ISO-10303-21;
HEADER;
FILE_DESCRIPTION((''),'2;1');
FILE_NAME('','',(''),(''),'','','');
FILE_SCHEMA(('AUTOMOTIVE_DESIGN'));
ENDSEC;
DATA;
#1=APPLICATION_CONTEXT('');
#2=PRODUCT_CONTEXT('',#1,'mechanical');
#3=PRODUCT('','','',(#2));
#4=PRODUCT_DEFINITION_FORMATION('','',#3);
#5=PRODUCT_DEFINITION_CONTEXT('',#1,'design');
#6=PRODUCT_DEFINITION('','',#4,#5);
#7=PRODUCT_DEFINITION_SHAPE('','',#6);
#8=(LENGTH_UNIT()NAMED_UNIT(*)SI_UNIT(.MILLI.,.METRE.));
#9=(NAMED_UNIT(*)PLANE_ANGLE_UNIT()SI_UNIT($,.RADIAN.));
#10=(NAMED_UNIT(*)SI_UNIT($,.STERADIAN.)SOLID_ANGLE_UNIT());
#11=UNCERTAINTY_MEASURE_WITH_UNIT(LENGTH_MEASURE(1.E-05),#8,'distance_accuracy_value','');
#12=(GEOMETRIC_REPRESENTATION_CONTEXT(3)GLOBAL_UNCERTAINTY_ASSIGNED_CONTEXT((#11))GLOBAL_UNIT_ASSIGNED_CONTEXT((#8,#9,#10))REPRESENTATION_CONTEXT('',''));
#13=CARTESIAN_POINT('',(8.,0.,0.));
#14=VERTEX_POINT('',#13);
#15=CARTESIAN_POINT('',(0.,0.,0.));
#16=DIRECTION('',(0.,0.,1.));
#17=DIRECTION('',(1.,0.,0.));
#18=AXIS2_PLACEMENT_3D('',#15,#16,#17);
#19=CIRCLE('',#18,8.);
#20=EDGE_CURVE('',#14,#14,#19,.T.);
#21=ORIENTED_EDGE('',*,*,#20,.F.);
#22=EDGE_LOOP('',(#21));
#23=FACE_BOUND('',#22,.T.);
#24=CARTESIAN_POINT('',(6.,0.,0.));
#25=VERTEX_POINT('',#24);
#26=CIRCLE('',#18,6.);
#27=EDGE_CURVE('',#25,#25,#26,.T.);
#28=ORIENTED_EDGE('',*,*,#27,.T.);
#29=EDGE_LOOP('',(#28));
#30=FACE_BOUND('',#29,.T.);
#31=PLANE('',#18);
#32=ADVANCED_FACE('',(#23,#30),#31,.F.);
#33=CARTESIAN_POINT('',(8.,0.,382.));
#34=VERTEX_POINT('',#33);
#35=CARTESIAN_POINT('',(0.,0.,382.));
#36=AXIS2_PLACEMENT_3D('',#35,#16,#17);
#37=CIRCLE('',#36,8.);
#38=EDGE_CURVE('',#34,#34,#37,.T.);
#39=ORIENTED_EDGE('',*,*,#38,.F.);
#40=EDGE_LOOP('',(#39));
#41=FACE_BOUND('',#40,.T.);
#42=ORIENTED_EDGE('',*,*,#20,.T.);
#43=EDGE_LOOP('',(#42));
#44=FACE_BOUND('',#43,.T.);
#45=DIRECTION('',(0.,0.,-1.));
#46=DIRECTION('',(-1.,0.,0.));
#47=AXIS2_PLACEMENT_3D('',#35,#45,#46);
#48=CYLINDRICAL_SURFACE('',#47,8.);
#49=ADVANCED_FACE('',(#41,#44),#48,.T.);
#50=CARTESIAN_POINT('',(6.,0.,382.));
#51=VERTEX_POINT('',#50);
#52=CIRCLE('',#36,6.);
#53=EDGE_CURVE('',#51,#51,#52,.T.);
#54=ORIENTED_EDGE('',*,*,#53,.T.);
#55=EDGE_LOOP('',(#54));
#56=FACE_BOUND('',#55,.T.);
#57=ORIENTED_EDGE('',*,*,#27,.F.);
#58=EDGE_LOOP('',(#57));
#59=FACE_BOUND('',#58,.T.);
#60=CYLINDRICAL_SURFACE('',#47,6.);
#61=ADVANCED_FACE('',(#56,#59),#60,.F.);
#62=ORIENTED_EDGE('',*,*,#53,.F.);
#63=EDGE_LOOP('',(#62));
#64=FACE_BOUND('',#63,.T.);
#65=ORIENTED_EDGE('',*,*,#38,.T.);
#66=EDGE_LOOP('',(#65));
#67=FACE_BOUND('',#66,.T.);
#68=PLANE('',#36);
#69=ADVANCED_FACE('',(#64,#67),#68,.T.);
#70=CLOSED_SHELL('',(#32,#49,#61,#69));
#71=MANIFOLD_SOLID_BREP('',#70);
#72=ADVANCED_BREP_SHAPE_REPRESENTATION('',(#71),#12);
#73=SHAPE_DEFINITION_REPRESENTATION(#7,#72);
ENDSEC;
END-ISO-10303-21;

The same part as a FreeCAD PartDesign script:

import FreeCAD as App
import Part
import Sketcher
from FreeCAD import Vector
Q = App.Units.Quantity

doc = App.newDocument("Part")
body = doc.addObject("PartDesign::Body", "Body")

sketch1 = body.newObject("Sketcher::SketchObject", "Sketch")
sketch1.AttachmentSupport = (doc.getObject("XY_Plane"), [""])
sketch1.MapMode = "FlatFace"
sketch1.addGeometry([
    Part.Circle(Vector(0, 0, 0), Vector(0, 0, 1), 8),
    Part.Circle(Vector(0, 0, 0), Vector(0, 0, 1), 6),
], False)
sketch1.addConstraint([
    Sketcher.Constraint("Coincident", 0, 3, -1, 1),
    Sketcher.Constraint("Coincident", 1, 3, -1, 1),
    Sketcher.Constraint("Diameter", 0, Q("16 mm")),
    Sketcher.Constraint("Diameter", 1, Q("12 mm")),
])
pad1 = body.newObject("PartDesign::Pad", "Pad")
pad1.Profile = sketch1
pad1.Length = 382

doc.recompute()
